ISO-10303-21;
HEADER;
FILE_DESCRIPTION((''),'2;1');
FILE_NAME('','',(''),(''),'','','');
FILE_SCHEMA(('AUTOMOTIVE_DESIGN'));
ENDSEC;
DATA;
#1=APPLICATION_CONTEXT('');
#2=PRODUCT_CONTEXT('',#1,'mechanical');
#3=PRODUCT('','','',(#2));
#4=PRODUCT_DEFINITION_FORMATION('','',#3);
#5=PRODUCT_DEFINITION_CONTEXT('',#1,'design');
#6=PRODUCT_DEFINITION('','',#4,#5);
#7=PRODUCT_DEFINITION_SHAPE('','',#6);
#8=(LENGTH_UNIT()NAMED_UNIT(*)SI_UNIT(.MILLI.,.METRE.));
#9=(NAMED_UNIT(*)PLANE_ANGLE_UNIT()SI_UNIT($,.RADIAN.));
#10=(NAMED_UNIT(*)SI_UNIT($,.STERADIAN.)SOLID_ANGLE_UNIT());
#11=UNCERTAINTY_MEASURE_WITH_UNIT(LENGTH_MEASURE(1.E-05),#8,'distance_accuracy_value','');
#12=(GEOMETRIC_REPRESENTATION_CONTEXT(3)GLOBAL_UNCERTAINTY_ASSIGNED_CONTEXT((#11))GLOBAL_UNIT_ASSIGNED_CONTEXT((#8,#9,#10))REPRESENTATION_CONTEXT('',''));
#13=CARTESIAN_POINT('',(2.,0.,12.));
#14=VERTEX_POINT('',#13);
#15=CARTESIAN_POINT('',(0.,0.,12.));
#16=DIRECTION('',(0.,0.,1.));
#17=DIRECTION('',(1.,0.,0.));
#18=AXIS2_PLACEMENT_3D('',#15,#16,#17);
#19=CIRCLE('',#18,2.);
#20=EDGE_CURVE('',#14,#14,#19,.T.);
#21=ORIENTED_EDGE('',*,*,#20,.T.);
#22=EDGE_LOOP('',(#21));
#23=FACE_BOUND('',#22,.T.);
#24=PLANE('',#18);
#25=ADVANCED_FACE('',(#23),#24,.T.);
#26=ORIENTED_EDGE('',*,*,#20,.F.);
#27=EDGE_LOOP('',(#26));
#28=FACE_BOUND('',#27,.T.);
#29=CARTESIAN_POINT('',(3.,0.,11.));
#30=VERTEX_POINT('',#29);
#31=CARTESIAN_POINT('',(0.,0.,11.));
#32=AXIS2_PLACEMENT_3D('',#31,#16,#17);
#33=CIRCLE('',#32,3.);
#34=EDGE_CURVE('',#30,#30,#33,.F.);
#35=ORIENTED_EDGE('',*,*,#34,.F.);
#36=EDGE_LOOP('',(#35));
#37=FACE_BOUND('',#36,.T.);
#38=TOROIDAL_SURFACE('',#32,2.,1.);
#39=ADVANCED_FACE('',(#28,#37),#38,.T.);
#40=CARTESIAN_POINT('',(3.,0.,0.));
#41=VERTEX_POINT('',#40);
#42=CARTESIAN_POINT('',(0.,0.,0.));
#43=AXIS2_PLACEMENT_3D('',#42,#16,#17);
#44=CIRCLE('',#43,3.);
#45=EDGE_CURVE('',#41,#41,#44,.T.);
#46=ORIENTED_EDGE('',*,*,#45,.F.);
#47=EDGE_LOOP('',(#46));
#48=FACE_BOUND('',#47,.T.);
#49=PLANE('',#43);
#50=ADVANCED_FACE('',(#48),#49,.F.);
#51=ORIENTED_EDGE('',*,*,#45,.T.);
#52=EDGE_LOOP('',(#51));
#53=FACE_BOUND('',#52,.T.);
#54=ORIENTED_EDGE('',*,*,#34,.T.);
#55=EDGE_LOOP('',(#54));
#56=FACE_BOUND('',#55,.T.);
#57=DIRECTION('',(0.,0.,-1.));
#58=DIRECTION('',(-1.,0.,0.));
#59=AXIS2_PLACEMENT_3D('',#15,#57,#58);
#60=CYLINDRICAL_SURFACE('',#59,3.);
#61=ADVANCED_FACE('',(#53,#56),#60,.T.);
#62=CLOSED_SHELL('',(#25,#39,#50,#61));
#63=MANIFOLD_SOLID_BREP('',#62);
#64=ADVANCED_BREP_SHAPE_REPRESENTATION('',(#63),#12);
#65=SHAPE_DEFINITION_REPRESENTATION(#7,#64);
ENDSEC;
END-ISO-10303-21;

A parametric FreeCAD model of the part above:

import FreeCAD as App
import Part
import Sketcher

V = App.Vector


def edges_at(feature, points):
    """Names of the edges that pass closest to the given points."""
    edges = feature.Shape.Edges
    near = lambda p: min(range(len(edges)), key=lambda i: edges[i].distToShape(Part.Vertex(*p))[0])
    return sorted({f"Edge{near(p) + 1}" for p in points})

doc = App.newDocument("Part")
body = doc.addObject("PartDesign::Body", "Body")

# Sketch on XY plane
sketch1 = body.newObject("Sketcher::SketchObject", "Sketch")
sketch1.AttachmentSupport = (doc.getObject("XY_Plane"), [""])
sketch1.MapMode = "FlatFace"
sketch1.addGeometry(Part.Circle(V(0, 0, 0), V(0, 0, 1), 3), False)
sketch1.addConstraint([
    Sketcher.Constraint("Coincident", 0, 3, -1, 1),
    Sketcher.Constraint("Diameter", 0, 6.0),
])
pad1 = body.newObject("PartDesign::Pad", "Pad")
pad1.Profile = sketch1
pad1.Length = 12
doc.recompute()

fillet = body.newObject("PartDesign::Fillet", "Fillet")
fillet.Base = (pad1, edges_at(pad1, [(-3, 0, 12)]))
fillet.Radius = 1

doc.recompute()
